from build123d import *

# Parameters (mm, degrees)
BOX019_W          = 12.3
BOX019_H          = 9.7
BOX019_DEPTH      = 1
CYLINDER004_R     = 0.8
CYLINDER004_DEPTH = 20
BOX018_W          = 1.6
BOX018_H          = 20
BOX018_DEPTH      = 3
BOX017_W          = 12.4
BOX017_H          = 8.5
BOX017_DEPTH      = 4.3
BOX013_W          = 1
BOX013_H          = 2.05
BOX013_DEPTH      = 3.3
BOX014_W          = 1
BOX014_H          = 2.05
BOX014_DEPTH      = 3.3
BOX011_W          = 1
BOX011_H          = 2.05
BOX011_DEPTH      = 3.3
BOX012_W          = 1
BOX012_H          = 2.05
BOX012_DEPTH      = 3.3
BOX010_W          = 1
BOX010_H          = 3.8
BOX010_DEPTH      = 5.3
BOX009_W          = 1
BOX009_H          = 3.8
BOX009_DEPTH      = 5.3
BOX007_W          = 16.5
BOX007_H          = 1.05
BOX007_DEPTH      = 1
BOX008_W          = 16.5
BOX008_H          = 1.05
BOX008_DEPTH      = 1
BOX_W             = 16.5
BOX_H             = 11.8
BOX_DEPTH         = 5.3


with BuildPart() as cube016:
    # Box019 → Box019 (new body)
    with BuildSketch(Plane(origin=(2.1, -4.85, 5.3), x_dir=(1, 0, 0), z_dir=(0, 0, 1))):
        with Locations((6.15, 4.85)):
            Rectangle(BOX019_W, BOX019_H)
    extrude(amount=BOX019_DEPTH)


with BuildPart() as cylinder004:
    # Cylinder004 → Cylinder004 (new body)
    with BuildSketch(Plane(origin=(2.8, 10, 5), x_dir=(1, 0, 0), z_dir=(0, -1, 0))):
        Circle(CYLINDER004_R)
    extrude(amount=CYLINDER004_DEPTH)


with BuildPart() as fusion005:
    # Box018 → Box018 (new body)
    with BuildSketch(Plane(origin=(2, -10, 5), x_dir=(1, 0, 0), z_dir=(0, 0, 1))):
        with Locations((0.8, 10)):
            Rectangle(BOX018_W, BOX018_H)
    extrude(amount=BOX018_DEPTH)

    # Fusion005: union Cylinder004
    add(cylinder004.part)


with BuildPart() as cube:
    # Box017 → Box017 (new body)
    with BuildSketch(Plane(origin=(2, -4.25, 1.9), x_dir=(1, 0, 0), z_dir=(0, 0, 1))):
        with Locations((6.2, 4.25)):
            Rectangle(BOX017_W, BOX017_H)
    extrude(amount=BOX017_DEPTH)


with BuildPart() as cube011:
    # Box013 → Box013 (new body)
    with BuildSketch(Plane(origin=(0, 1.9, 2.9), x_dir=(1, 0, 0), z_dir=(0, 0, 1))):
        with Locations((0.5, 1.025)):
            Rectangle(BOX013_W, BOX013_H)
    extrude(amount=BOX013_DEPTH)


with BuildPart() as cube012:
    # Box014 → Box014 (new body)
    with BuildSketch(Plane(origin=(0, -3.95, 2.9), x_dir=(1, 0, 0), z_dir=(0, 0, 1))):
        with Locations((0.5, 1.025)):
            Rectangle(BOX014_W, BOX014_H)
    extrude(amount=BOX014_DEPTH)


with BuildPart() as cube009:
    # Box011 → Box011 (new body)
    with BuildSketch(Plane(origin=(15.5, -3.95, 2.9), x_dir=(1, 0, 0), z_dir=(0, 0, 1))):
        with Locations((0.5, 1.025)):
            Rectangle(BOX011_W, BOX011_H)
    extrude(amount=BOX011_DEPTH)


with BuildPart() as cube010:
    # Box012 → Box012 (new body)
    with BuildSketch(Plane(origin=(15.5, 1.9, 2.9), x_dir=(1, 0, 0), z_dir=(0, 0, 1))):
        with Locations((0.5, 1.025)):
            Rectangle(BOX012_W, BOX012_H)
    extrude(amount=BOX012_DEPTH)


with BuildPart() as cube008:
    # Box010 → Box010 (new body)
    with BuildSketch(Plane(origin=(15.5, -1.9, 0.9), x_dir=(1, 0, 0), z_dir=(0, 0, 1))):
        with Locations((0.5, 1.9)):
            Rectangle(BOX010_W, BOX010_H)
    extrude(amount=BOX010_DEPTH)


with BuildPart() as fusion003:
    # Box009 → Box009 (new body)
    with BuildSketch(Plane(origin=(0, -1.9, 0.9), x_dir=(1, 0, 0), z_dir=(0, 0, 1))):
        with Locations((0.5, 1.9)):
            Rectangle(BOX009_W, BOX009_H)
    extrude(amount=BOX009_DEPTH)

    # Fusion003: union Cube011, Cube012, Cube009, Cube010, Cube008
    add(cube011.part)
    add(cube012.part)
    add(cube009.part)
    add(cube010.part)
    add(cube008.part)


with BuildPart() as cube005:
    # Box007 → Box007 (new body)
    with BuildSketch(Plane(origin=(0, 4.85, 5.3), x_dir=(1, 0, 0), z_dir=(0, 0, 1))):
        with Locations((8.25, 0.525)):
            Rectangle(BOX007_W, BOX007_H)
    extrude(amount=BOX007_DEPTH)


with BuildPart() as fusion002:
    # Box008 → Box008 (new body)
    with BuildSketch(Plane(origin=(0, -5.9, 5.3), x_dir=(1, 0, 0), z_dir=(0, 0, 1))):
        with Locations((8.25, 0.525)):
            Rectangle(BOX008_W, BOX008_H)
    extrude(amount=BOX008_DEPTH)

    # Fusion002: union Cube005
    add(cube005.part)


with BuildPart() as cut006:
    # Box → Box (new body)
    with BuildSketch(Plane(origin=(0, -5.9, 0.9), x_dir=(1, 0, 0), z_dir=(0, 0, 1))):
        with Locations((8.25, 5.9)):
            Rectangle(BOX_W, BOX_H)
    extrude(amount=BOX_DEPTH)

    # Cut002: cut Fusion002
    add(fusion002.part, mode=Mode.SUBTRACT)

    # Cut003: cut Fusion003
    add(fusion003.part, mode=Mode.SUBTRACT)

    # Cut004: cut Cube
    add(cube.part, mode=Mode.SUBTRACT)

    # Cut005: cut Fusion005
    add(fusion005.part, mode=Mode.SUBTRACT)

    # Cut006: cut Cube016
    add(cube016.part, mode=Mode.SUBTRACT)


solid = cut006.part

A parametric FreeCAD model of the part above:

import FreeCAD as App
import Part
import Sketcher
from FreeCAD import Vector
Q = App.Units.Quantity

doc = App.newDocument("Part")
body = doc.addObject("PartDesign::Body", "Body")

sketch1 = doc.addObject("Sketcher::SketchObject", "Sketch")
body.addObject(sketch1)
sketch1.AttachmentSupport = (doc.XY_Plane, [""])
sketch1.MapMode = "FlatFace"
sketch1.AttachmentOffset = App.Placement(Vector(0, 0, 5.3), App.Rotation())
sketch1.addGeometry([
    Part.LineSegment(Vector(2, 5, 0), Vector(2, -5, 0)),
    Part.LineSegment(Vector(2, -5, 0), Vector(14, -5, 0)),
    Part.LineSegment(Vector(14, -5, 0), Vector(14, 5, 0)),
    Part.LineSegment(Vector(14, 5, 0), Vector(2, 5, 0)),
], False)
sketch1.addConstraint([
    Sketcher.Constraint("Coincident", 0, 2, 1, 1),
    Sketcher.Constraint("Coincident", 1, 2, 2, 1),
    Sketcher.Constraint("Coincident", 2, 2, 3, 1),
    Sketcher.Constraint("Coincident", 3, 2, 0, 1),
    Sketcher.Constraint("Vertical", 0),
    Sketcher.Constraint("Horizontal", 1),
    Sketcher.Constraint("Vertical", 2),
    Sketcher.Constraint("Horizontal", 3),
    Sketcher.Constraint("DistanceX", 1, 1, 1, 2, Q("12.3 mm")),
    Sketcher.Constraint("DistanceY", 0, 2, 0, 1, Q("9.7 mm")),
    Sketcher.Constraint("DistanceX", -1, 1, 0, 2, Q("2.1 mm")),
    Sketcher.Constraint("DistanceY", 0, 2, -1, 1, Q("4.85 mm")),
])
pad1 = doc.addObject("PartDesign::Pad", "Pad")
body.addObject(pad1)
pad1.Profile = sketch1
pad1.Length = 1
body2 = doc.addObject("PartDesign::Body", "Body001")

sketch2 = doc.addObject("Sketcher::SketchObject", "Sketch001")
body2.addObject(sketch2)
sketch2.AttachmentSupport = (doc.getObject("XZ_Plane001"), [""])
sketch2.MapMode = "FlatFace"
sketch2.AttachmentOffset = App.Placement(Vector(0, 0, -10), App.Rotation())
sketch2.addGeometry(Part.Circle(Vector(2.8, 5, 0), Vector(0, 0, 1), 0.8), False)
sketch2.addConstraint([
    Sketcher.Constraint("Diameter", 0, Q("1.6 mm")),
    Sketcher.Constraint("DistanceY", -1, 1, 0, 3, Q("5 mm")),
    Sketcher.Constraint("DistanceX", -1, 1, 0, 3, Q("2.8 mm")),
])
pad2 = doc.addObject("PartDesign::Pad", "Pad001")
body2.addObject(pad2)
pad2.Profile = sketch2
pad2.Length = 20
body3 = doc.addObject("PartDesign::Body", "Body002")

sketch3 = doc.addObject("Sketcher::SketchObject", "Sketch002")
body3.addObject(sketch3)
sketch3.AttachmentSupport = (doc.getObject("XY_Plane002"), [""])
sketch3.MapMode = "FlatFace"
sketch3.AttachmentOffset = App.Placement(Vector(0, 0, 5), App.Rotation())
sketch3.addGeometry([
    Part.LineSegment(Vector(2, 10, 0), Vector(2, -10, 0)),
    Part.LineSegment(Vector(2, -10, 0), Vector(3.6, -10, 0)),
    Part.LineSegment(Vector(3.6, -10, 0), Vector(3.6, 10, 0)),
    Part.LineSegment(Vector(3.6, 10, 0), Vector(2, 10, 0)),
], False)
sketch3.addConstraint([
    Sketcher.Constraint("Coincident", 0, 2, 1, 1),
    Sketcher.Constraint("Coincident", 1, 2, 2, 1),
    Sketcher.Constraint("Coincident", 2, 2, 3, 1),
    Sketcher.Constraint("Coincident", 3, 2, 0, 1),
    Sketcher.Constraint("Vertical", 0),
    Sketcher.Constraint("Horizontal", 1),
    Sketcher.Constraint("Vertical", 2),
    Sketcher.Constraint("Horizontal", 3),
    Sketcher.Constraint("DistanceY", 0, 2, 0, 1, Q("20 mm")),
    Sketcher.Constraint("DistanceX", 1, 1, 1, 2, Q("1.6 mm")),
    Sketcher.Constraint("DistanceX", -1, 1, 0, 2, Q("2 mm")),
    Sketcher.Constraint("DistanceY", 0, 2, -1, 1, Q("10 mm")),
])
pad3 = doc.addObject("PartDesign::Pad", "Pad002")
body3.addObject(pad3)
pad3.Profile = sketch3
pad3.Length = 3
doc.recompute()

boolean = doc.addObject("PartDesign::Boolean", "Boolean")
body3.addObject(boolean)
boolean.Type = "Fuse"
boolean.addObjects([body2])
body4 = doc.addObject("PartDesign::Body", "Body003")

sketch4 = doc.addObject("Sketcher::SketchObject", "Sketch003")
body4.addObject(sketch4)
sketch4.AttachmentSupport = (doc.getObject("XY_Plane003"), [""])
sketch4.MapMode = "FlatFace"
sketch4.AttachmentOffset = App.Placement(Vector(0, 0, 1.9), App.Rotation())
sketch4.addGeometry([
    Part.LineSegment(Vector(2, 4, 0), Vector(2, -4, 0)),
    Part.LineSegment(Vector(2, -4, 0), Vector(14, -4, 0)),
    Part.LineSegment(Vector(14, -4, 0), Vector(14, 4, 0)),
    Part.LineSegment(Vector(14, 4, 0), Vector(2, 4, 0)),
], False)
sketch4.addConstraint([
    Sketcher.Constraint("Coincident", 0, 2, 1, 1),
    Sketcher.Constraint("Coincident", 1, 2, 2, 1),
    Sketcher.Constraint("Coincident", 2, 2, 3, 1),
    Sketcher.Constraint("Coincident", 3, 2, 0, 1),
    Sketcher.Constraint("Vertical", 0),
    Sketcher.Constraint("Horizontal", 1),
    Sketcher.Constraint("Vertical", 2),
    Sketcher.Constraint("Horizontal", 3),
    Sketcher.Constraint("DistanceX", 1, 1, 1, 2, Q("12.4 mm")),
    Sketcher.Constraint("DistanceY", 0, 2, 0, 1, Q("8.5 mm")),
    Sketcher.Constraint("DistanceX", -1, 1, 0, 2, Q("2 mm")),
    Sketcher.Constraint("DistanceY", 0, 2, -1, 1, Q("4.25 mm")),
])
pad4 = doc.addObject("PartDesign::Pad", "Pad003")
body4.addObject(pad4)
pad4.Profile = sketch4
pad4.Length = 4.3
body5 = doc.addObject("PartDesign::Body", "Body004")

sketch5 = doc.addObject("Sketcher::SketchObject", "Sketch004")
body5.addObject(sketch5)
sketch5.AttachmentSupport = (doc.getObject("XY_Plane004"), [""])
sketch5.MapMode = "FlatFace"
sketch5.AttachmentOffset = App.Placement(Vector(0, 0, 2.9), App.Rotation())
sketch5.addGeometry([
    Part.LineSegment(Vector(0, 4, 0), Vector(0, 1.9, 0)),
    Part.LineSegment(Vector(0, 1.9, 0), Vector(1, 1.9, 0)),
    Part.LineSegment(Vector(1, 1.9, 0), Vector(1, 4, 0)),
    Part.LineSegment(Vector(1, 4, 0), Vector(0, 4, 0)),
], False)
sketch5.addConstraint([
    Sketcher.Constraint("Coincident", 0, 2, 1, 1),
    Sketcher.Constraint("Coincident", 1, 2, 2, 1),
    Sketcher.Constraint("Coincident", 2, 2, 3, 1),
    Sketcher.Constraint("Coincident", 3, 2, 0, 1),
    Sketcher.Constraint("Vertical", 0),
    Sketcher.Constraint("Horizontal", 1),
    Sketcher.Constraint("Vertical", 2),
    Sketcher.Constraint("Horizontal", 3),
    Sketcher.Constraint("PointOnObject", 0, 2, -2),
    Sketcher.Constraint("DistanceX", 1, 1, 1, 2, Q("1 mm")),
    Sketcher.Constraint("DistanceY", 0, 2, 0, 1, Q("2.05 mm")),
    Sketcher.Constraint("DistanceY", -1, 1, 0, 2, Q("1.9 mm")),
])
pad5 = doc.addObject("PartDesign::Pad", "Pad004")
body5.addObject(pad5)
pad5.Profile = sketch5
pad5.Length = 3.3
body6 = doc.addObject("PartDesign::Body", "Body005")

sketch6 = doc.addObject("Sketcher::SketchObject", "Sketch005")
body6.addObject(sketch6)
sketch6.AttachmentSupport = (doc.getObject("XY_Plane005"), [""])
sketch6.MapMode = "FlatFace"
sketch6.AttachmentOffset = App.Placement(Vector(0, 0, 2.9), App.Rotation())
sketch6.addGeometry([
    Part.LineSegment(Vector(0, -1.9, 0), Vector(0, -4, 0)),
    Part.LineSegment(Vector(0, -4, 0), Vector(1, -4, 0)),
    Part.LineSegment(Vector(1, -4, 0), Vector(1, -1.9, 0)),
    Part.LineSegment(Vector(1, -1.9, 0), Vector(0, -1.9, 0)),
], False)
sketch6.addConstraint([
    Sketcher.Constraint("Coincident", 0, 2, 1, 1),
    Sketcher.Constraint("Coincident", 1, 2, 2, 1),
    Sketcher.Constraint("Coincident", 2, 2, 3, 1),
    Sketcher.Constraint("Coincident", 3, 2, 0, 1),
    Sketcher.Constraint("Vertical", 0),
    Sketcher.Constraint("Horizontal", 1),
    Sketcher.Constraint("Vertical", 2),
    Sketcher.Constraint("Horizontal", 3),
    Sketcher.Constraint("PointOnObject", 0, 2, -2),
    Sketcher.Constraint("DistanceX", 1, 1, 1, 2, Q("1 mm")),
    Sketcher.Constraint("DistanceY", 0, 2, 0, 1, Q("2.05 mm")),
    Sketcher.Constraint("DistanceY", 2, 2, -1, 1, Q("1.9 mm")),
])
pad6 = doc.addObject("PartDesign::Pad", "Pad005")
body6.addObject(pad6)
pad6.Profile = sketch6
pad6.Length = 3.3
body7 = doc.addObject("PartDesign::Body", "Body006")

sketch7 = doc.addObject("Sketcher::SketchObject", "Sketch006")
body7.addObject(sketch7)
sketch7.AttachmentSupport = (doc.getObject("XY_Plane006"), [""])
sketch7.MapMode = "FlatFace"
sketch7.AttachmentOffset = App.Placement(Vector(0, 0, 2.9), App.Rotation())
sketch7.addGeometry([
    Part.LineSegment(Vector(15.5, -1.9, 0), Vector(15.5, -4, 0)),
    Part.LineSegment(Vector(15.5, -4, 0), Vector(16.5, -4, 0)),
    Part.LineSegment(Vector(16.5, -4, 0), Vector(16.5, -1.9, 0)),
    Part.LineSegment(Vector(16.5, -1.9, 0), Vector(15.5, -1.9, 0)),
], False)
sketch7.addConstraint([
    Sketcher.Constraint("Coincident", 0, 2, 1, 1),
    Sketcher.Constraint("Coincident", 1, 2, 2, 1),
    Sketcher.Constraint("Coincident", 2, 2, 3, 1),
    Sketcher.Constraint("Coincident", 3, 2, 0, 1),
    Sketcher.Constraint("Vertical", 0),
    Sketcher.Constraint("Horizontal", 1),
    Sketcher.Constraint("Vertical", 2),
    Sketcher.Constraint("Horizontal", 3),
    Sketcher.Constraint("DistanceX", 1, 1, 1, 2, Q("1 mm")),
    Sketcher.Constraint("DistanceY", 0, 2, 0, 1, Q("2.05 mm")),
    Sketcher.Constraint("DistanceX", -1, 1, 0, 2, Q("15.5 mm")),
    Sketcher.Constraint("DistanceY", 2, 2, -1, 1, Q("1.9 mm")),
])
pad7 = doc.addObject("PartDesign::Pad", "Pad006")
body7.addObject(pad7)
pad7.Profile = sketch7
pad7.Length = 3.3
body8 = doc.addObject("PartDesign::Body", "Body007")

sketch8 = doc.addObject("Sketcher::SketchObject", "Sketch007")
body8.addObject(sketch8)
sketch8.AttachmentSupport = (doc.getObject("XY_Plane007"), [""])
sketch8.MapMode = "FlatFace"
sketch8.AttachmentOffset = App.Placement(Vector(0, 0, 2.9), App.Rotation())
sketch8.addGeometry([
    Part.LineSegment(Vector(15.5, 4, 0), Vector(15.5, 1.9, 0)),
    Part.LineSegment(Vector(15.5, 1.9, 0), Vector(16.5, 1.9, 0)),
    Part.LineSegment(Vector(16.5, 1.9, 0), Vector(16.5, 4, 0)),
    Part.LineSegment(Vector(16.5, 4, 0), Vector(15.5, 4, 0)),
], False)
sketch8.addConstraint([
    Sketcher.Constraint("Coincident", 0, 2, 1, 1),
    Sketcher.Constraint("Coincident", 1, 2, 2, 1),
    Sketcher.Constraint("Coincident", 2, 2, 3, 1),
    Sketcher.Constraint("Coincident", 3, 2, 0, 1),
    Sketcher.Constraint("Vertical", 0),
    Sketcher.Constraint("Horizontal", 1),
    Sketcher.Constraint("Vertical", 2),
    Sketcher.Constraint("Horizontal", 3),
    Sketcher.Constraint("DistanceX", 1, 1, 1, 2, Q("1 mm")),
    Sketcher.Constraint("DistanceY", 0, 2, 0, 1, Q("2.05 mm")),
    Sketcher.Constraint("DistanceX", -1, 1, 0, 2, Q("15.5 mm")),
    Sketcher.Constraint("DistanceY", -1, 1, 0, 2, Q("1.9 mm")),
])
pad8 = doc.addObject("PartDesign::Pad", "Pad007")
body8.addObject(pad8)
pad8.Profile = sketch8
pad8.Length = 3.3
body9 = doc.addObject("PartDesign::Body", "Body008")

sketch9 = doc.addObject("Sketcher::SketchObject", "Sketch008")
body9.addObject(sketch9)
sketch9.AttachmentSupport = (doc.getObject("XY_Plane008"), [""])
sketch9.MapMode = "FlatFace"
sketch9.AttachmentOffset = App.Placement(Vector(0, 0, 0.9), App.Rotation())
sketch9.addGeometry([
    Part.LineSegment(Vector(15.5, 1.9, 0), Vector(15.5, -1.9, 0)),
    Part.LineSegment(Vector(15.5, -1.9, 0), Vector(16.5, -1.9, 0)),
    Part.LineSegment(Vector(16.5, -1.9, 0), Vector(16.5, 1.9, 0)),
    Part.LineSegment(Vector(16.5, 1.9, 0), Vector(15.5, 1.9, 0)),
], False)
sketch9.addConstraint([
    Sketcher.Constraint("Coincident", 0, 2, 1, 1),
    Sketcher.Constraint("Coincident", 1, 2, 2, 1),
    Sketcher.Constraint("Coincident", 2, 2, 3, 1),
    Sketcher.Constraint("Coincident", 3, 2, 0, 1),
    Sketcher.Constraint("Vertical", 0),
    Sketcher.Constraint("Horizontal", 1),
    Sketcher.Constraint("Vertical", 2),
    Sketcher.Constraint("Horizontal", 3),
    Sketcher.Constraint("DistanceX", 1, 1, 1, 2, Q("1 mm")),
    Sketcher.Constraint("DistanceY", 0, 2, 0, 1, Q("3.8 mm")),
    Sketcher.Constraint("DistanceX", -1, 1, 0, 2, Q("15.5 mm")),
    Sketcher.Constraint("DistanceY", 0, 2, -1, 1, Q("1.9 mm")),
])
pad9 = doc.addObject("PartDesign::Pad", "Pad008")
body9.addObject(pad9)
pad9.Profile = sketch9
pad9.Length = 5.3
body10 = doc.addObject("PartDesign::Body", "Body009")
body10.AllowCompound = True

sketch10 = doc.addObject("Sketcher::SketchObject", "Sketch009")
body10.addObject(sketch10)
sketch10.AttachmentSupport = (doc.getObject("XY_Plane009"), [""])
sketch10.MapMode = "FlatFace"
sketch10.AttachmentOffset = App.Placement(Vector(0, 0, 0.9), App.Rotation())
sketch10.addGeometry([
    Part.LineSegment(Vector(0, 1.9, 0), Vector(0, -1.9, 0)),
    Part.LineSegment(Vector(0, -1.9, 0), Vector(1, -1.9, 0)),
    Part.LineSegment(Vector(1, -1.9, 0), Vector(1, 1.9, 0)),
    Part.LineSegment(Vector(1, 1.9, 0), Vector(0, 1.9, 0)),
], False)
sketch10.addConstraint([
    Sketcher.Constraint("Coincident", 0, 2, 1, 1),
    Sketcher.Constraint("Coincident", 1, 2, 2, 1),
    Sketcher.Constraint("Coincident", 2, 2, 3, 1),
    Sketcher.Constraint("Coincident", 3, 2, 0, 1),
    Sketcher.Constraint("Vertical", 0),
    Sketcher.Constraint("Horizontal", 1),
    Sketcher.Constraint("Vertical", 2),
    Sketcher.Constraint("Horizontal", 3),
    Sketcher.Constraint("Symmetric", 0, 2, 3, 2, -1, 1),
    Sketcher.Constraint("DistanceX", 1, 1, 1, 2, Q("1 mm")),
    Sketcher.Constraint("DistanceY", 0, 2, 0, 1, Q("3.8 mm")),
])
pad10 = doc.addObject("PartDesign::Pad", "Pad009")
body10.addObject(pad10)
pad10.Profile = sketch10
pad10.Length = 5.3
doc.recompute()

boolean2 = doc.addObject("PartDesign::Boolean", "Boolean001")
body10.addObject(boolean2)
boolean2.Type = "Fuse"
boolean2.addObjects([body5])
doc.recompute()

boolean3 = doc.addObject("PartDesign::Boolean", "Boolean002")
body10.addObject(boolean3)
boolean3.Type = "Fuse"
boolean3.addObjects([body6])
doc.recompute()

boolean4 = doc.addObject("PartDesign::Boolean", "Boolean003")
body10.addObject(boolean4)
boolean4.Type = "Fuse"
boolean4.addObjects([body7])
doc.recompute()

boolean5 = doc.addObject("PartDesign::Boolean", "Boolean004")
body10.addObject(boolean5)
boolean5.Type = "Fuse"
boolean5.addObjects([body8])
doc.recompute()

boolean6 = doc.addObject("PartDesign::Boolean", "Boolean005")
body10.addObject(boolean6)
boolean6.Type = "Fuse"
boolean6.addObjects([body9])
body11 = doc.addObject("PartDesign::Body", "Body010")

sketch11 = doc.addObject("Sketcher::SketchObject", "Sketch010")
body11.addObject(sketch11)
sketch11.AttachmentSupport = (doc.getObject("XY_Plane010"), [""])
sketch11.MapMode = "FlatFace"
sketch11.AttachmentOffset = App.Placement(Vector(0, 0, 5.3), App.Rotation())
sketch11.addGeometry([
    Part.LineSegment(Vector(0, 5.9, 0), Vector(0, 4.8, 0)),
    Part.LineSegment(Vector(0, 4.8, 0), Vector(16.5, 4.8, 0)),
    Part.LineSegment(Vector(16.5, 4.8, 0), Vector(16.5, 5.9, 0)),
    Part.LineSegment(Vector(16.5, 5.9, 0), Vector(0, 5.9, 0)),
], False)
sketch11.addConstraint([
    Sketcher.Constraint("Coincident", 0, 2, 1, 1),
    Sketcher.Constraint("Coincident", 1, 2, 2, 1),
    Sketcher.Constraint("Coincident", 2, 2, 3, 1),
    Sketcher.Constraint("Coincident", 3, 2, 0, 1),
    Sketcher.Constraint("Vertical", 0),
    Sketcher.Constraint("Horizontal", 1),
    Sketcher.Constraint("Vertical", 2),
    Sketcher.Constraint("Horizontal", 3),
    Sketcher.Constraint("PointOnObject", 0, 2, -2),
    Sketcher.Constraint("DistanceX", 1, 1, 1, 2, Q("16.5 mm")),
    Sketcher.Constraint("DistanceY", 0, 2, 0, 1, Q("1.05 mm")),
    Sketcher.Constraint("DistanceY", -1, 1, 2, 2, Q("5.9 mm")),
])
pad11 = doc.addObject("PartDesign::Pad", "Pad010")
body11.addObject(pad11)
pad11.Profile = sketch11
pad11.Length = 1
body12 = doc.addObject("PartDesign::Body", "Body011")
body12.AllowCompound = True

sketch12 = doc.addObject("Sketcher::SketchObject", "Sketch011")
body12.addObject(sketch12)
sketch12.AttachmentSupport = (doc.getObject("XY_Plane011"), [""])
sketch12.MapMode = "FlatFace"
sketch12.AttachmentOffset = App.Placement(Vector(0, 0, 5.3), App.Rotation())
sketch12.addGeometry([
    Part.LineSegment(Vector(0, -4.8, 0), Vector(0, -5.9, 0)),
    Part.LineSegment(Vector(0, -5.9, 0), Vector(16.5, -5.9, 0)),
    Part.LineSegment(Vector(16.5, -5.9, 0), Vector(16.5, -4.8, 0)),
    Part.LineSegment(Vector(16.5, -4.8, 0), Vector(0, -4.8, 0)),
], False)
sketch12.addConstraint([
    Sketcher.Constraint("Coincident", 0, 2, 1, 1),
    Sketcher.Constraint("Coincident", 1, 2, 2, 1),
    Sketcher.Constraint("Coincident", 2, 2, 3, 1),
    Sketcher.Constraint("Coincident", 3, 2, 0, 1),
    Sketcher.Constraint("Vertical", 0),
    Sketcher.Constraint("Horizontal", 1),
    Sketcher.Constraint("Vertical", 2),
    Sketcher.Constraint("Horizontal", 3),
    Sketcher.Constraint("PointOnObject", 0, 2, -2),
    Sketcher.Constraint("DistanceX", 1, 1, 1, 2, Q("16.5 mm")),
    Sketcher.Constraint("DistanceY", 0, 2, 0, 1, Q("1.05 mm")),
    Sketcher.Constraint("DistanceY", 0, 2, -1, 1, Q("5.9 mm")),
])
pad12 = doc.addObject("PartDesign::Pad", "Pad011")
body12.addObject(pad12)
pad12.Profile = sketch12
pad12.Length = 1
doc.recompute()

boolean7 = doc.addObject("PartDesign::Boolean", "Boolean006")
body12.addObject(boolean7)
boolean7.Type = "Fuse"
boolean7.addObjects([body11])
body13 = doc.addObject("PartDesign::Body", "Body012")

sketch13 = doc.addObject("Sketcher::SketchObject", "Sketch012")
body13.addObject(sketch13)
sketch13.AttachmentSupport = (doc.getObject("XY_Plane012"), [""])
sketch13.MapMode = "FlatFace"
sketch13.AttachmentOffset = App.Placement(Vector(0, 0, 0.9), App.Rotation())
sketch13.addGeometry([
    Part.LineSegment(Vector(0, 6, 0), Vector(0, -6, 0)),
    Part.LineSegment(Vector(0, -6, 0), Vector(16, -6, 0)),
    Part.LineSegment(Vector(16, -6, 0), Vector(16, 6, 0)),
    Part.LineSegment(Vector(16, 6, 0), Vector(0, 6, 0)),
], False)
sketch13.addConstraint([
    Sketcher.Constraint("Coincident", 0, 2, 1, 1),
    Sketcher.Constraint("Coincident", 1, 2, 2, 1),
    Sketcher.Constraint("Coincident", 2, 2, 3, 1),
    Sketcher.Constraint("Coincident", 3, 2, 0, 1),
    Sketcher.Constraint("Vertical", 0),
    Sketcher.Constraint("Horizontal", 1),
    Sketcher.Constraint("Vertical", 2),
    Sketcher.Constraint("Horizontal", 3),
    Sketcher.Constraint("Symmetric", 0, 2, 3, 2, -1, 1),
    Sketcher.Constraint("DistanceX", 1, 1, 1, 2, Q("16.5 mm")),
    Sketcher.Constraint("DistanceY", 0, 2, 0, 1, Q("11.8 mm")),
])
pad13 = doc.addObject("PartDesign::Pad", "Pad012")
body13.addObject(pad13)
pad13.Profile = sketch13
pad13.Length = 5.3
doc.recompute()

boolean8 = doc.addObject("PartDesign::Boolean", "Boolean007")
body13.addObject(boolean8)
boolean8.Type = "Cut"
boolean8.addObjects([body12])
doc.recompute()

boolean9 = doc.addObject("PartDesign::Boolean", "Boolean008")
body13.addObject(boolean9)
boolean9.Type = "Cut"
boolean9.addObjects([body10])
doc.recompute()

boolean10 = doc.addObject("PartDesign::Boolean", "Boolean009")
body13.addObject(boolean10)
boolean10.Type = "Cut"
boolean10.addObjects([body4])
doc.recompute()

boolean11 = doc.addObject("PartDesign::Boolean", "Boolean010")
body13.addObject(boolean11)
boolean11.Type = "Cut"
boolean11.addObjects([body3])
doc.recompute()

boolean12 = doc.addObject("PartDesign::Boolean", "Boolean011")
body13.addObject(boolean12)
boolean12.Type = "Cut"
boolean12.addObjects([body])

doc.recompute()
